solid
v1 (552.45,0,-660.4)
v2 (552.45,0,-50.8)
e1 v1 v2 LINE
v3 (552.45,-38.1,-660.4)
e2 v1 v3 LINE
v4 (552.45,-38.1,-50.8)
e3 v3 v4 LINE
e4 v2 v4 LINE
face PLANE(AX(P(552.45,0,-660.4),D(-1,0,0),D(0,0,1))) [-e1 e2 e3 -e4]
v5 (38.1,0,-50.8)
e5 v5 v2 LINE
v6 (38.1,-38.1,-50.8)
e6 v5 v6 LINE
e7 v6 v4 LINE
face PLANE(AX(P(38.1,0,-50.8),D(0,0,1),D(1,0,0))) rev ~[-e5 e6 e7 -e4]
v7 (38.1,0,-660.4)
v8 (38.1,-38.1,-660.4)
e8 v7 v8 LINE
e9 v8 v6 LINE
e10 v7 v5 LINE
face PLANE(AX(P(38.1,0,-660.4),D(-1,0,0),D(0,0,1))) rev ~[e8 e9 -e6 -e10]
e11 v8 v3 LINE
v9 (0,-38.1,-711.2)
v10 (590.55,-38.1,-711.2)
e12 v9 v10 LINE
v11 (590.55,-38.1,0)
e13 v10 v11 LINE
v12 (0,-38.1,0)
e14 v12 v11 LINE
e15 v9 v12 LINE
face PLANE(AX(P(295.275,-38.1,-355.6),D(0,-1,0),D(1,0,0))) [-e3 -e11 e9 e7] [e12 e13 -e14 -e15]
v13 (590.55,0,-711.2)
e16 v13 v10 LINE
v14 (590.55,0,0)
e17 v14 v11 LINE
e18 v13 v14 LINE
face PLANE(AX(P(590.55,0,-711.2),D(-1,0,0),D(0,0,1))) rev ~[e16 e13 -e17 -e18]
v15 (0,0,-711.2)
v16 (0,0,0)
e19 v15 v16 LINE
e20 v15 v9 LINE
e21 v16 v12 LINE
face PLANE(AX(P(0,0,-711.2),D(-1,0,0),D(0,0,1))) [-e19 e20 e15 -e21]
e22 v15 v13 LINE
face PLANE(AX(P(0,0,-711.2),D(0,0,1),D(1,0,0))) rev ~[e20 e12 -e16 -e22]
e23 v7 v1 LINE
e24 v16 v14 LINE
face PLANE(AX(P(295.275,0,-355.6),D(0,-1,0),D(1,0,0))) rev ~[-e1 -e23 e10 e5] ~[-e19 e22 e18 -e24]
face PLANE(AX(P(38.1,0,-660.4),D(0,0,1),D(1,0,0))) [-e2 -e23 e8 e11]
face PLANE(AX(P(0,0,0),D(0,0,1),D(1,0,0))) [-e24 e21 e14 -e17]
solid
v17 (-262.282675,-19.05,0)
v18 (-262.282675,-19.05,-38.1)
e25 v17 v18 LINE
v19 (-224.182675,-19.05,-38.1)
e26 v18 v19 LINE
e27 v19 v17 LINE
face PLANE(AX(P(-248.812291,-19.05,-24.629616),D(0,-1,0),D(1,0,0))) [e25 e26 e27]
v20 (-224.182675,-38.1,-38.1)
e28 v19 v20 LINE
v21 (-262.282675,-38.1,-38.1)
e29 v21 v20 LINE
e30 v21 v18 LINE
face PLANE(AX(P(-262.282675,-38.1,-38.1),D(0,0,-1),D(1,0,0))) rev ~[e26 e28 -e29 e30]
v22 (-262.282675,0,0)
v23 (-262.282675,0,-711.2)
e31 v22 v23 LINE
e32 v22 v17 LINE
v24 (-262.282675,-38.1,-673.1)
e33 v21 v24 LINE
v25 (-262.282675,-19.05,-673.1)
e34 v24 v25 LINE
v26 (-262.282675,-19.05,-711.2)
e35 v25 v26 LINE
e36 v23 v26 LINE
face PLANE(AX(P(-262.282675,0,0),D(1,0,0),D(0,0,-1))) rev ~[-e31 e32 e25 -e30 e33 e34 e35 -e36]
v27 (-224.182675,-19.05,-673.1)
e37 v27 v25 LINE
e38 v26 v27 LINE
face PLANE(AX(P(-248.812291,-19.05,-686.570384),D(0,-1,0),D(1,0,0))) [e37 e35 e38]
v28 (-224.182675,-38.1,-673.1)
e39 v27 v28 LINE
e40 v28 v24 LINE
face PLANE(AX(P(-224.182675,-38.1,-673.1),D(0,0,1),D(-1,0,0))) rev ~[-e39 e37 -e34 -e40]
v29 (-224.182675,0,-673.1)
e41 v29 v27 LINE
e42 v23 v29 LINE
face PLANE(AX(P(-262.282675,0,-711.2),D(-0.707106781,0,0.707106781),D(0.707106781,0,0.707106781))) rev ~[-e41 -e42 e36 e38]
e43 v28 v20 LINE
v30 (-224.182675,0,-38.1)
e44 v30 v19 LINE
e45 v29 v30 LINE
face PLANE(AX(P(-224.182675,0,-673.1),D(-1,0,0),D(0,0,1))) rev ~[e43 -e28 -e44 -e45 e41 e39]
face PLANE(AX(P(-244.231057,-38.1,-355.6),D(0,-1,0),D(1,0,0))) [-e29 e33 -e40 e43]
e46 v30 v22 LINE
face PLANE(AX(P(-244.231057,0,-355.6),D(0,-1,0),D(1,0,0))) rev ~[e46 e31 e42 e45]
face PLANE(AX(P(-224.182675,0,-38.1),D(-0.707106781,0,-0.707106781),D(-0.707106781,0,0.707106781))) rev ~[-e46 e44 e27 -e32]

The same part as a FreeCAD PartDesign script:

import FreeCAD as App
import Part
import Sketcher

V = App.Vector
Q = App.Units.Quantity

doc = App.newDocument("Part")
body = doc.addObject("PartDesign::Body", "Body")

sketch1 = body.newObject("Sketcher::SketchObject", "Sketch")
sketch1.AttachmentSupport = (doc.getObject("XZ_Plane"), [""])
sketch1.MapMode = "FlatFace"
sketch1.addGeometry(Part.LineSegment(V(0, 0, 0), V(0, -711, 0)), False)
sketch1.addGeometry(Part.LineSegment(V(0, -711, 0), V(591, -711, 0)), False)
sketch1.addGeometry(Part.LineSegment(V(591, -711, 0), V(591, 0, 0)), False)
sketch1.addGeometry(Part.LineSegment(V(591, 0, 0), V(0, 0, 0)), False)
sketch1.addGeometry(Part.LineSegment(V(552, -660, 0), V(38, -660, 0)), False)
sketch1.addGeometry(Part.LineSegment(V(38, -660, 0), V(38, -51, 0)), False)
sketch1.addGeometry(Part.LineSegment(V(38, -51, 0), V(552, -51, 0)), False)
sketch1.addGeometry(Part.LineSegment(V(552, -51, 0), V(552, -660, 0)), False)
sketch1.addConstraint(Sketcher.Constraint("Coincident", 0, 2, 1, 1))
sketch1.addConstraint(Sketcher.Constraint("Coincident", 1, 2, 2, 1))
sketch1.addConstraint(Sketcher.Constraint("Coincident", 2, 2, 3, 1))
sketch1.addConstraint(Sketcher.Constraint("Coincident", 3, 2, 0, 1))
sketch1.addConstraint(Sketcher.Constraint("Coincident", 4, 2, 5, 1))
sketch1.addConstraint(Sketcher.Constraint("Coincident", 5, 2, 6, 1))
sketch1.addConstraint(Sketcher.Constraint("Coincident", 6, 2, 7, 1))
sketch1.addConstraint(Sketcher.Constraint("Coincident", 7, 2, 4, 1))
sketch1.addConstraint(Sketcher.Constraint("Vertical", 0))
sketch1.addConstraint(Sketcher.Constraint("Horizontal", 1))
sketch1.addConstraint(Sketcher.Constraint("Vertical", 2))
sketch1.addConstraint(Sketcher.Constraint("Horizontal", 3))
sketch1.addConstraint(Sketcher.Constraint("Horizontal", 4))
sketch1.addConstraint(Sketcher.Constraint("Vertical", 5))
sketch1.addConstraint(Sketcher.Constraint("Horizontal", 6))
sketch1.addConstraint(Sketcher.Constraint("Vertical", 7))
sketch1.addConstraint(Sketcher.Constraint("Coincident", 3, 2, -1, 1))
sketch1.addConstraint(Sketcher.Constraint("DistanceY", 0, 2, 0, 1, Q("28 in")))
sketch1.addConstraint(Sketcher.Constraint("DistanceY", 5, 1, 5, 2, Q("24 in")))
sketch1.addConstraint(Sketcher.Constraint("DistanceY", 4, 2, -1, 1, Q("26 in")))
sketch1.addConstraint(Sketcher.Constraint("DistanceX", 1, 1, 1, 2, Q("23.25 in")))
sketch1.addConstraint(Sketcher.Constraint("DistanceX", 4, 2, 4, 1, Q("20.25 in")))
sketch1.addConstraint(Sketcher.Constraint("DistanceX", -1, 1, 4, 2, Q("1.5 in")))
pad1 = body.newObject("PartDesign::Pad", "Pad")
pad1.Profile = sketch1
pad1.Length = Q("1.5 in")
body2 = doc.addObject("PartDesign::Body", "Body001")

sketch2 = body2.newObject("Sketcher::SketchObject", "Sketch001")
sketch2.AttachmentSupport = (doc.getObject("XZ_Plane001"), [""])
sketch2.MapMode = "FlatFace"
sketch2.addGeometry(Part.LineSegment(V(-224, -38, 0), V(-262, 0, 0)), False)
sketch2.addGeometry(Part.LineSegment(V(-262, 0, 0), V(-262, -711, 0)), False)
sketch2.addGeometry(Part.LineSegment(V(-262, -711, 0), V(-224, -673, 0)), False)
sketch2.addGeometry(Part.LineSegment(V(-224, -673, 0), V(-224, -38, 0)), False)
sketch2.addConstraint(Sketcher.Constraint("Coincident", 0, 2, 1, 1))
sketch2.addConstraint(Sketcher.Constraint("Coincident", 1, 2, 2, 1))
sketch2.addConstraint(Sketcher.Constraint("Coincident", 2, 2, 3, 1))
sketch2.addConstraint(Sketcher.Constraint("Coincident", 3, 2, 0, 1))
sketch2.addConstraint(Sketcher.Constraint("Vertical", 1))
sketch2.addConstraint(Sketcher.Constraint("Vertical", 3))
sketch2.addConstraint(Sketcher.Constraint("PointOnObject", 0, 2, -1))
sketch2.addConstraint(Sketcher.Constraint("Perpendicular", 0, 2))
sketch2.addConstraint(Sketcher.Constraint("Equal", 0, 2))
sketch2.addConstraint(Sketcher.Constraint("DistanceY", 1, 2, 1, 1, Q("28 in")))
sketch2.addConstraint(Sketcher.Constraint("DistanceY", 3, 1, 3, 2, Q("25 in")))
sketch2.addConstraint(Sketcher.Constraint("DistanceX", 0, 2, -1, 1, 262.282675))
pad2 = body2.newObject("PartDesign::Pad", "Pad001")
pad2.Profile = sketch2
pad2.Length = Q("1.5 in")

sketch3 = body2.newObject("Sketcher::SketchObject", "Sketch002")
sketch3.AttachmentSupport = (doc.getObject("XZ_Plane001"), [""])
sketch3.MapMode = "FlatFace"
sketch3.AttachmentOffset = App.Placement(V(0, 0, 1.5 * 25.4), App.Rotation())
sketch3.addGeometry(Part.LineSegment(V(-262, -711, 0), V(-224, -673, 0)), False)
sketch3.addGeometry(Part.LineSegment(V(-224, -673, 0), V(-262, -673, 0)), False)
sketch3.addGeometry(Part.LineSegment(V(-262, -673, 0), V(-262, -711, 0)), False)
sketch3.addGeometry(Part.LineSegment(V(-224, -38, 0), V(-262, 0, 0)), False)
sketch3.addGeometry(Part.LineSegment(V(-262, 0, 0), V(-262, -38, 0)), False)
sketch3.addGeometry(Part.LineSegment(V(-262, -38, 0), V(-224, -38, 0)), False)
sketch3.addConstraint(Sketcher.Constraint("Coincident", 0, 2, 1, 1))
sketch3.addConstraint(Sketcher.Constraint("Coincident", 1, 2, 2, 1))
sketch3.addConstraint(Sketcher.Constraint("Coincident", 2, 2, 0, 1))
sketch3.addConstraint(Sketcher.Constraint("Coincident", 3, 2, 4, 1))
sketch3.addConstraint(Sketcher.Constraint("Coincident", 4, 2, 5, 1))
sketch3.addConstraint(Sketcher.Constraint("Coincident", 5, 2, 3, 1))
sketch3.addConstraint(Sketcher.Constraint("Horizontal", 1))
sketch3.addConstraint(Sketcher.Constraint("Vertical", 2))
sketch3.addConstraint(Sketcher.Constraint("Vertical", 4))
sketch3.addConstraint(Sketcher.Constraint("Horizontal", 5))
sketch3.addConstraint(Sketcher.Constraint("PointOnObject", 3, 2, -1))
sketch3.addConstraint(Sketcher.Constraint("Perpendicular", 0, 3))
sketch3.addConstraint(Sketcher.Constraint("Vertical", 2, 2, 3, 2))
sketch3.addConstraint(Sketcher.Constraint("Vertical", 0, 2, 5, 2))
sketch3.addConstraint(Sketcher.Constraint("Equal", 5, 2))
sketch3.addConstraint(Sketcher.Constraint("DistanceX", 1, 2, 1, 1, Q("1.5 in")))
sketch3.addConstraint(Sketcher.Constraint("DistanceY", 2, 2, -1, 1, Q("28 in")))
sketch3.addConstraint(Sketcher.Constraint("DistanceX", 0, 2, -1, 1, 224.182675))
pocket1 = body2.newObject("PartDesign::Pocket", "Pocket")
pocket1.Profile = sketch3
pocket1.Length = Q("0.75 in")

doc.recompute()
